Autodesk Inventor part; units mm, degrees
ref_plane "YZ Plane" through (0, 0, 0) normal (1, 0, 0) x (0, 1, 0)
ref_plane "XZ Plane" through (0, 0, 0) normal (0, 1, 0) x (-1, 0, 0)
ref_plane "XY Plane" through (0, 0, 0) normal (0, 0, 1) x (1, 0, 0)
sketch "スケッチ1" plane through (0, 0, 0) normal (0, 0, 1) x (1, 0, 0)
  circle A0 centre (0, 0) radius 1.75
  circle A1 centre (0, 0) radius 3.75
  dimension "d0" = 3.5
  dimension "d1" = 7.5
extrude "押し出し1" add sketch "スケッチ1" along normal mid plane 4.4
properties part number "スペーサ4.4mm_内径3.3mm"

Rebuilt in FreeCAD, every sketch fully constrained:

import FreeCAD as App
import Part
import Sketcher

V = App.Vector

doc = App.newDocument("Part")
body = doc.addObject("PartDesign::Body", "Body")

# Sketch on XY plane
sketch1 = body.newObject("Sketcher::SketchObject", "Sketch")
sketch1.AttachmentSupport = (doc.getObject("XY_Plane"), [""])
sketch1.MapMode = "FlatFace"
sketch1.addGeometry(Part.Circle(V(0, 0, 0), V(0, 0, 1), 3.75), False)
sketch1.addGeometry(Part.Circle(V(0, 0, 0), V(0, 0, 1), 1.75), False)
sketch1.addConstraint(Sketcher.Constraint("Coincident", 0, 3, -1, 1))
sketch1.addConstraint(Sketcher.Constraint("Coincident", 1, 3, -1, 1))
sketch1.addConstraint(Sketcher.Constraint("Diameter", 0, 7.5))
sketch1.addConstraint(Sketcher.Constraint("Diameter", 1, 3.5))
pad1 = body.newObject("PartDesign::Pad", "Pad")
pad1.Profile = sketch1
pad1.Length = 4.4
pad1.Midplane = True

doc.recompute()
